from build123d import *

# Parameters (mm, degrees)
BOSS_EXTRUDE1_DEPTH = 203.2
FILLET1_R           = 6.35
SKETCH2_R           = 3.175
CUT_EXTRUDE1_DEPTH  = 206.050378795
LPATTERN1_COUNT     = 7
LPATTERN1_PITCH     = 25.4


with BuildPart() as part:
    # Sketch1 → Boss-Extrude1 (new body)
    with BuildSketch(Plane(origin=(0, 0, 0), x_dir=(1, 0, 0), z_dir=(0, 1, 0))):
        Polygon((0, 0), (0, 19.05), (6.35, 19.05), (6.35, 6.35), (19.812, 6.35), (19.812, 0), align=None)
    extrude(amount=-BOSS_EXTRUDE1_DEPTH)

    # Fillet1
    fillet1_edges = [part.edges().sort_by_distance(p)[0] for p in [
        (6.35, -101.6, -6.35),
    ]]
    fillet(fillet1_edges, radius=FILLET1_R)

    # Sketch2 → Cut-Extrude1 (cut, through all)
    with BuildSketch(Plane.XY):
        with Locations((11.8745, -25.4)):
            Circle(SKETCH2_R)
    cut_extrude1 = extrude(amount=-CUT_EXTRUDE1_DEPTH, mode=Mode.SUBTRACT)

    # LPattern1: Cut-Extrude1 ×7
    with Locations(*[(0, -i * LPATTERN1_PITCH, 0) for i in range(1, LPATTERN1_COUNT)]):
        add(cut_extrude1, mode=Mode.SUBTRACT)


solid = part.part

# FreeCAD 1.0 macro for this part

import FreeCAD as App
import Part
import Sketcher
Q = App.Units.Quantity


def edges_at(feature, points):
    """Names of the edges that pass closest to the given points."""
    edges = feature.Shape.Edges
    near = lambda p: min(range(len(edges)), key=lambda i: edges[i].distToShape(Part.Vertex(*p))[0])
    return sorted({f"Edge{near(p) + 1}" for p in points})

doc = App.newDocument("Part")
body = doc.addObject("PartDesign::Body", "Body")

sketch1 = body.newObject("Sketcher::SketchObject", "Sketch")
sketch1.AttachmentSupport = (doc.getObject("XZ_Plane"), [""])
sketch1.MapMode = "FlatFace"
sketch1.addGeometry([
    Part.LineSegment(App.Vector(0, -19, 0), App.Vector(0, 0, 0)),
    Part.LineSegment(App.Vector(0, 0, 0), App.Vector(20, 0, 0)),
    Part.LineSegment(App.Vector(20, 0, 0), App.Vector(20, -6, 0)),
    Part.LineSegment(App.Vector(20, -6, 0), App.Vector(6, -6, 0)),
    Part.LineSegment(App.Vector(6, -6, 0), App.Vector(6, -19, 0)),
    Part.LineSegment(App.Vector(6, -19, 0), App.Vector(0, -19, 0)),
], False)
sketch1.addConstraint([
    Sketcher.Constraint("Coincident", 0, 2, 1, 1),
    Sketcher.Constraint("Coincident", 1, 2, 2, 1),
    Sketcher.Constraint("Coincident", 2, 2, 3, 1),
    Sketcher.Constraint("Coincident", 3, 2, 4, 1),
    Sketcher.Constraint("Coincident", 4, 2, 5, 1),
    Sketcher.Constraint("Coincident", 5, 2, 0, 1),
    Sketcher.Constraint("Vertical", 0),
    Sketcher.Constraint("Horizontal", 1),
    Sketcher.Constraint("Vertical", 2),
    Sketcher.Constraint("Horizontal", 3),
    Sketcher.Constraint("Vertical", 4),
    Sketcher.Constraint("Horizontal", 5),
    Sketcher.Constraint("Coincident", 0, 2, -1, 1),
    Sketcher.Constraint("Equal", 5, 2),
    Sketcher.Constraint("DistanceY", 4, 2, 4, 1, Q("0.5 in")),
    Sketcher.Constraint("DistanceX", 1, 1, 1, 2, Q("0.78 in")),
    Sketcher.Constraint("DistanceX", 3, 2, 3, 1, Q("0.53 in")),
])
pad1 = body.newObject("PartDesign::Pad", "Pad")
pad1.Profile = sketch1
pad1.Length = Q("8 in")
doc.recompute()

fillet = body.newObject("PartDesign::Fillet", "Fillet")
fillet.Base = (pad1, edges_at(pad1, [(6.35, -101.6, -6.35)]))
fillet.Radius = Q("0.25 in")

sketch2 = body.newObject("Sketcher::SketchObject", "Sketch001")
sketch2.AttachmentSupport = (doc.getObject("XY_Plane"), [""])
sketch2.MapMode = "FlatFace"
sketch2.addGeometry(Part.Circle(App.Vector(11.9, -25.4, 0), App.Vector(0, 0, 1), 3.2), False)
sketch2.addConstraint([
    Sketcher.Constraint("Diameter", 0, Q("0.25 in")),
    Sketcher.Constraint("DistanceY", 0, 3, -1, 1, Q("1 in")),
    Sketcher.Constraint("DistanceX", -1, 1, 0, 3, Q("0.4675 in")),
])
pocket1 = body.newObject("PartDesign::Pocket", "Pocket")
pocket1.Profile = sketch2
pocket1.Type = "ThroughAll"
doc.recompute()

linearpattern = body.newObject("PartDesign::LinearPattern", "LinearPattern")
linearpattern.Originals = [pocket1]
linearpattern.Direction = (doc.getObject("Y_Axis"), [""])
linearpattern.Mode = "offset"
linearpattern.Offset = Q("1 in")
linearpattern.Occurrences = 7
linearpattern.Reversed = True
body.Tip = linearpattern

doc.recompute()
